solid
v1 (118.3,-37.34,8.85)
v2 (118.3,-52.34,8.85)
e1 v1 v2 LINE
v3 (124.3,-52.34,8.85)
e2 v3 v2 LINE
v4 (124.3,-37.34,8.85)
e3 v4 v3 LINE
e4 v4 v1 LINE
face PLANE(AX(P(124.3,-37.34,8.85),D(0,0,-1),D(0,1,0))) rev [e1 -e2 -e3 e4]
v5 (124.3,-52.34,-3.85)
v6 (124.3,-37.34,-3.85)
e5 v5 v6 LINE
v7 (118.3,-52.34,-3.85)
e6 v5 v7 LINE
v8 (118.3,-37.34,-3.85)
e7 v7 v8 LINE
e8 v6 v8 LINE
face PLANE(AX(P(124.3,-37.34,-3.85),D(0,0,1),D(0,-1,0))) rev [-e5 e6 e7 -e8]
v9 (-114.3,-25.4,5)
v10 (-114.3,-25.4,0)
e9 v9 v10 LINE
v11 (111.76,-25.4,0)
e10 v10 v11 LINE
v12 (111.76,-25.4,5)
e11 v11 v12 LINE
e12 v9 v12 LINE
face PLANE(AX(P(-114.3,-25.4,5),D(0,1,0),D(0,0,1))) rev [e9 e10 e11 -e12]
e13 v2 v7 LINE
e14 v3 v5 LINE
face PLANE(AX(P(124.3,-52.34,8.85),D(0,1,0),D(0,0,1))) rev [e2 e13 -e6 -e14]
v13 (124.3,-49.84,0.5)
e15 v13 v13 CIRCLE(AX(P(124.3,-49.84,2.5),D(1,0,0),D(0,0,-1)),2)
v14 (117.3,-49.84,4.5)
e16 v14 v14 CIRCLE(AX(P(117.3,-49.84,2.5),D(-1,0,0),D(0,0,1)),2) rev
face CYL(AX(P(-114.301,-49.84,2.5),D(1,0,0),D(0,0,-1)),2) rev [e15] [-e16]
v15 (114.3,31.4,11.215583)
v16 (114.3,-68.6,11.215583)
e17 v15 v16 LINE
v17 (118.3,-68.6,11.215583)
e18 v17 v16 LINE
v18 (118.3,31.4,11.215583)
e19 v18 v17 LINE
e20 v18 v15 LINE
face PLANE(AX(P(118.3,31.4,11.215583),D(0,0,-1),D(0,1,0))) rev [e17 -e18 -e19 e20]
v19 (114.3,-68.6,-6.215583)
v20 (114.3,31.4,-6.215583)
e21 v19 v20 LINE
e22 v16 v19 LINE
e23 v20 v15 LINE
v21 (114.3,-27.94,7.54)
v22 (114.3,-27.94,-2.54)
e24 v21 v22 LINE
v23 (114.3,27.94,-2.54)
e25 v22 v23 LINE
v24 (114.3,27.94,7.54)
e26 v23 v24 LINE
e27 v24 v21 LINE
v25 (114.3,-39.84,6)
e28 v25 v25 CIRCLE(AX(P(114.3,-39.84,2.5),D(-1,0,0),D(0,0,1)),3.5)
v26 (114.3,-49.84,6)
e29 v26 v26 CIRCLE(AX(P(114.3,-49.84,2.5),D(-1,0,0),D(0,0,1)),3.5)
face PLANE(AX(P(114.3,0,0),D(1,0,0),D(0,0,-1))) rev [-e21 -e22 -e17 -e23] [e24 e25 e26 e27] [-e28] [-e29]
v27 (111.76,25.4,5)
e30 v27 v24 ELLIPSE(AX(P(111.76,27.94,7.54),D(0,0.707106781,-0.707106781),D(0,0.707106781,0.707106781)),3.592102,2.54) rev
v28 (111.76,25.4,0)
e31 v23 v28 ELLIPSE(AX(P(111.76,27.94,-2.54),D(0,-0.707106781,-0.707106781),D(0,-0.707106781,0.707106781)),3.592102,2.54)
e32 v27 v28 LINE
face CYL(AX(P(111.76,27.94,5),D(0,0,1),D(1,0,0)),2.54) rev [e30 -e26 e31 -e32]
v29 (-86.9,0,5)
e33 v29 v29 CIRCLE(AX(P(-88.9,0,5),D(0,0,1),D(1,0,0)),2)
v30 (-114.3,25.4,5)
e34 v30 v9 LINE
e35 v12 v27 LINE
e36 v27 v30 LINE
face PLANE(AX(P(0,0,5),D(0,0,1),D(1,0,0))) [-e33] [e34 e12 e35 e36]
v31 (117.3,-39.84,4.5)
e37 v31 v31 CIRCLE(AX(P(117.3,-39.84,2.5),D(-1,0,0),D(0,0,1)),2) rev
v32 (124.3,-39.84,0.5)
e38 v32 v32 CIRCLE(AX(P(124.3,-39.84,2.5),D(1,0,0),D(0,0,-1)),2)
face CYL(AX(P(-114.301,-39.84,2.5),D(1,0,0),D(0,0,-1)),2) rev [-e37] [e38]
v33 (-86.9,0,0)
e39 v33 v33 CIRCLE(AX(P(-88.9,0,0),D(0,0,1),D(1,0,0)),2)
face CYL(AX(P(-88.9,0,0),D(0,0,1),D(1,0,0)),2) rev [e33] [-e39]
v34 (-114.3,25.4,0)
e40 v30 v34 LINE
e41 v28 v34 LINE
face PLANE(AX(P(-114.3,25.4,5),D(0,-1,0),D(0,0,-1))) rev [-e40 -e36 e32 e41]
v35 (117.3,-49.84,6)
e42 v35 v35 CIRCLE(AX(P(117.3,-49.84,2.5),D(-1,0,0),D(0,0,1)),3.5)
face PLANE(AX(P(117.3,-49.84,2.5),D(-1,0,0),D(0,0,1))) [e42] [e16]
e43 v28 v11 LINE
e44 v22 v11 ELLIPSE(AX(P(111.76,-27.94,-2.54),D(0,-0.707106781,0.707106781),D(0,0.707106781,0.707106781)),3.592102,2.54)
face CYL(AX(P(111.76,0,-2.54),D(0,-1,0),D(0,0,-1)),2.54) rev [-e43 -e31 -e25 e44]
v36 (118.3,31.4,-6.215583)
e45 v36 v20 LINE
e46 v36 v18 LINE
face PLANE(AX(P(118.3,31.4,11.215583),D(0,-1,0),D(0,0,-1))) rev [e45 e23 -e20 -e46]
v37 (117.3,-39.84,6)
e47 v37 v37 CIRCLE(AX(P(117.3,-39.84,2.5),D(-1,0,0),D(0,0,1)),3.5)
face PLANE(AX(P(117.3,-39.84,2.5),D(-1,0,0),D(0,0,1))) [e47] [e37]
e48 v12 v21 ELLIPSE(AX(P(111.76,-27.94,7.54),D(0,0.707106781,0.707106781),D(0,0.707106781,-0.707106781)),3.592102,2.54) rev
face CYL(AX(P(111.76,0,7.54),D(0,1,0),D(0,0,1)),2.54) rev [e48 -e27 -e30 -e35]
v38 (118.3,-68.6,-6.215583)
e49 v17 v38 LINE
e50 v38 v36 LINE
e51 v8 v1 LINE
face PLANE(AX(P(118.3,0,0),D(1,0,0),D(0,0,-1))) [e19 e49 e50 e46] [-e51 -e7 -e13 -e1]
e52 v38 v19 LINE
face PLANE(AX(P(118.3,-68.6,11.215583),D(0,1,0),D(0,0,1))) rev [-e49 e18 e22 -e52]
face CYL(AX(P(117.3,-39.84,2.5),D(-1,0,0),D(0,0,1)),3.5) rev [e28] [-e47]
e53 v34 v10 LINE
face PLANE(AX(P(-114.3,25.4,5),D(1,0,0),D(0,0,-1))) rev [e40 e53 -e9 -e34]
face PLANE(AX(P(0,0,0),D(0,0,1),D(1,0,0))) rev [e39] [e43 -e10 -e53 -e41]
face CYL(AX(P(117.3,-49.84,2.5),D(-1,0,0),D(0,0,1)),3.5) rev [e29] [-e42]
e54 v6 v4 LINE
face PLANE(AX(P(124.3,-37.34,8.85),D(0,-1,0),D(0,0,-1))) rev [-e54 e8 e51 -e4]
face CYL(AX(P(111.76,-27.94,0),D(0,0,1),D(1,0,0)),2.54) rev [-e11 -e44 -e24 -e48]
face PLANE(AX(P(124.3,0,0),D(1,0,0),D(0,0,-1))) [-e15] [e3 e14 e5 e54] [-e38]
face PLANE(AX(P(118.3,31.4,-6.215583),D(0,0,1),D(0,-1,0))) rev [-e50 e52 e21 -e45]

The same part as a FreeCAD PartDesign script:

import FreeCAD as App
import Part
import Sketcher
Q = App.Units.Quantity


def edges_at(feature, points):
    """Names of the edges that pass closest to the given points."""
    edges = feature.Shape.Edges
    near = lambda p: min(range(len(edges)), key=lambda i: edges[i].distToShape(Part.Vertex(*p))[0])
    return sorted({f"Edge{near(p) + 1}" for p in points})


def add_polygon(sketch, points):
    """Adds a closed chain of lines whose ends are joined by coincident constraints."""
    first, n = sketch.GeometryCount, len(points)
    for a, b in zip(points, points[1:] + points[:1]):
        sketch.addGeometry(Part.LineSegment(App.Vector(*a, 0), App.Vector(*b, 0)), False)
    for i in range(n):
        sketch.addConstraint(Sketcher.Constraint("Coincident", first + i, 2, first + (i + 1) % n, 1))

doc = App.newDocument("Part")
params = doc.addObject("Spreadsheet::Sheet", "Params")
for row, (alias, value) in enumerate([
    ("sketch1_width", "228.6 mm"),
    ("sketch1_height", "50.8 mm"),
    ("pad1_length", "5 mm"),
    ("sketch2_diameter", "4 mm"),
    ("sketch3_width", "100 mm"),
    ("pad2_length", "4 mm"),
    ("sketch4_width", "15 mm"),
    ("sketch4_height", "12.7 mm"),
    ("pad3_length", "6 mm"),
    ("sketch5_diameter", "4 mm"),
    ("sketch6_diameter", "4 mm"),
    ("sketch7_diameter", "7 mm"),
    ("pocket4_length", "3 mm"),
    ("fillet_radius", "2.54 mm"),
], start=1):
    params.set(f"A{row}", alias)
    params.set(f"B{row}", "=" + value)
    params.setAlias(f"B{row}", alias)

body = doc.addObject("PartDesign::Body", "Body")

# Sketch on XY plane
sketch1 = body.newObject("Sketcher::SketchObject", "Sketch")
sketch1.AttachmentSupport = (doc.getObject("XY_Plane"), [""])
sketch1.MapMode = "FlatFace"
add_polygon(sketch1, [(-114, 25), (-114, -25), (114, -25), (114, 25)])  # lines 0-3
sketch1.addConstraint([
    Sketcher.Constraint("Vertical", 0),
    Sketcher.Constraint("Horizontal", 1),
    Sketcher.Constraint("Vertical", 2),
    Sketcher.Constraint("Horizontal", 3),
    Sketcher.Constraint("Symmetric", 0, 2, 2, 2, -1, 1),
    Sketcher.Constraint("DistanceX", 1, 1, 1, 2, Q("228.6 mm")),
    Sketcher.Constraint("DistanceY", 0, 2, 0, 1, Q("50.8 mm")),
])
sketch1.setExpression("Constraints[9]", "Params.sketch1_width")
sketch1.setExpression("Constraints[10]", "Params.sketch1_height")
pad1 = body.newObject("PartDesign::Pad", "Pad")
pad1.Profile = sketch1
pad1.setExpression("Length", "Params.pad1_length")

# Sketch on XY plane
sketch2 = body.newObject("Sketcher::SketchObject", "Sketch001")
sketch2.AttachmentSupport = (doc.getObject("XY_Plane"), [""])
sketch2.MapMode = "FlatFace"
sketch2.AttachmentOffset = App.Placement(App.Vector(0, 0, 5), App.Rotation())
sketch2.addGeometry(Part.Circle(App.Vector(-88.9, 0, 0), App.Vector(0, 0, 1), 2), False)
sketch2.addConstraint([
    Sketcher.Constraint("PointOnObject", 0, 3, -1),
    Sketcher.Constraint("Diameter", 0, Q("4 mm")),
    Sketcher.Constraint("DistanceX", 0, 3, -1, 1, Q("88.9 mm")),
])
sketch2.setExpression("Constraints[1]", "Params.sketch2_diameter")
pocket1 = body.newObject("PartDesign::Pocket", "Pocket")
pocket1.Profile = sketch2
pocket1.Type = "ThroughAll"

# Sketch on YZ plane
sketch3 = body.newObject("Sketcher::SketchObject", "Sketch002")
sketch3.AttachmentSupport = (doc.getObject("YZ_Plane"), [""])
sketch3.MapMode = "FlatFace"
sketch3.AttachmentOffset = App.Placement(App.Vector(0, 0, 114.3), App.Rotation())
add_polygon(sketch3, [(31, 11), (-69, 11), (-69, -6), (31, -6)])  # lines 0-3
sketch3.addConstraint([
    Sketcher.Constraint("Horizontal", 0),
    Sketcher.Constraint("Vertical", 1),
    Sketcher.Constraint("Horizontal", 2),
    Sketcher.Constraint("Vertical", 3),
    Sketcher.Constraint("DistanceX", 0, 2, 0, 1, Q("100 mm")),
    Sketcher.Constraint("DistanceX", 0, 2, -1, 1, Q("68.6 mm")),
    Sketcher.Constraint("DistanceY", 1, 2, 1, 1, Q("17.431165 mm")),
    Sketcher.Constraint("DistanceY", -1, 1, 0, 2, Q("11.215583 mm")),
])
sketch3.setExpression("Constraints[8]", "Params.sketch3_width")
pad2 = body.newObject("PartDesign::Pad", "Pad001")
pad2.Profile = sketch3
pad2.setExpression("Length", "Params.pad2_length")

# Sketch on YZ plane
sketch4 = body.newObject("Sketcher::SketchObject", "Sketch003")
sketch4.AttachmentSupport = (doc.getObject("YZ_Plane"), [""])
sketch4.MapMode = "FlatFace"
sketch4.AttachmentOffset = App.Placement(App.Vector(0, 0, 118.3), App.Rotation())
add_polygon(sketch4, [(-37, 9), (-52, 9), (-52, -4), (-37, -4)])  # lines 0-3
sketch4.addConstraint([
    Sketcher.Constraint("Horizontal", 0),
    Sketcher.Constraint("Vertical", 1),
    Sketcher.Constraint("Horizontal", 2),
    Sketcher.Constraint("Vertical", 3),
    Sketcher.Constraint("DistanceX", 0, 2, 0, 1, Q("15 mm")),
    Sketcher.Constraint("DistanceY", 1, 2, 1, 1, Q("12.7 mm")),
    Sketcher.Constraint("DistanceX", 0, 2, -1, 1, Q("52.34 mm")),
    Sketcher.Constraint("DistanceY", -1, 1, 0, 2, Q("8.85 mm")),
])
sketch4.setExpression("Constraints[8]", "Params.sketch4_width")
sketch4.setExpression("Constraints[9]", "Params.sketch4_height")
pad3 = body.newObject("PartDesign::Pad", "Pad002")
pad3.Profile = sketch4
pad3.setExpression("Length", "Params.pad3_length")

# Sketch on YZ plane
sketch5 = body.newObject("Sketcher::SketchObject", "Sketch004")
sketch5.AttachmentSupport = (doc.getObject("YZ_Plane"), [""])
sketch5.MapMode = "FlatFace"
sketch5.AttachmentOffset = App.Placement(App.Vector(0, 0, 124.3), App.Rotation())
sketch5.addGeometry(Part.Circle(App.Vector(-39.8, 2.5, 0), App.Vector(0, 0, 1), 2), False)
sketch5.addConstraint([
    Sketcher.Constraint("Diameter", 0, Q("4 mm")),
    Sketcher.Constraint("DistanceY", -1, 1, 0, 3, Q("2.5 mm")),
    Sketcher.Constraint("DistanceX", 0, 3, -1, 1, Q("39.84 mm")),
])
sketch5.setExpression("Constraints[0]", "Params.sketch5_diameter")
pocket2 = body.newObject("PartDesign::Pocket", "Pocket001")
pocket2.Profile = sketch5
pocket2.Type = "UpToFirst"

# Sketch on YZ plane
sketch6 = body.newObject("Sketcher::SketchObject", "Sketch005")
sketch6.AttachmentSupport = (doc.getObject("YZ_Plane"), [""])
sketch6.MapMode = "FlatFace"
sketch6.AttachmentOffset = App.Placement(App.Vector(0, 0, 124.3), App.Rotation())
sketch6.addGeometry(Part.Circle(App.Vector(-49.8, 2.5, 0), App.Vector(0, 0, 1), 2), False)
sketch6.addConstraint([
    Sketcher.Constraint("Diameter", 0, Q("4 mm")),
    Sketcher.Constraint("DistanceY", -1, 1, 0, 3, Q("2.5 mm")),
    Sketcher.Constraint("DistanceX", 0, 3, -1, 1, Q("49.84 mm")),
])
sketch6.setExpression("Constraints[0]", "Params.sketch6_diameter")
pocket3 = body.newObject("PartDesign::Pocket", "Pocket002")
pocket3.Profile = sketch6
pocket3.Type = "UpToFirst"

# Sketch on YZ plane
sketch7 = body.newObject("Sketcher::SketchObject", "Sketch006")
sketch7.AttachmentSupport = (doc.getObject("YZ_Plane"), [""])
sketch7.MapMode = "FlatFace"
sketch7.AttachmentOffset = App.Placement(App.Vector(0, 0, 114.3), App.Rotation())
sketch7.addGeometry([
    Part.Circle(App.Vector(-39.8, 2.5, 0), App.Vector(0, 0, 1), 3.5),
    Part.Circle(App.Vector(-49.8, 2.5, 0), App.Vector(0, 0, 1), 3.5),
], False)
sketch7.addConstraint([
    Sketcher.Constraint("Equal", 0, 1),
    Sketcher.Constraint("Horizontal", 0, 3, 1, 3),
    Sketcher.Constraint("Diameter", 0, Q("7 mm")),
    Sketcher.Constraint("DistanceX", 1, 3, 0, 3, Q("10 mm")),
    Sketcher.Constraint("DistanceY", -1, 1, 0, 3, Q("2.5 mm")),
    Sketcher.Constraint("DistanceX", 0, 3, -1, 1, Q("39.84 mm")),
])
sketch7.setExpression("Constraints[2]", "Params.sketch7_diameter")
pocket4 = body.newObject("PartDesign::Pocket", "Pocket003")
pocket4.Profile = sketch7
pocket4.setExpression("Length", "Params.pocket4_length")
pocket4.Reversed = True
doc.recompute()

fillet = body.newObject("PartDesign::Fillet", "Fillet")
fillet.Base = (pocket4, edges_at(pocket4, [
    (114.3, 0, 5),
    (114.3, 0, 0),
    (114.3, -25.4, 2.5),
    (114.3, 25.4, 2.5),
]))
fillet.setExpression("Radius", "Params.fillet_radius")

doc.recompute()
